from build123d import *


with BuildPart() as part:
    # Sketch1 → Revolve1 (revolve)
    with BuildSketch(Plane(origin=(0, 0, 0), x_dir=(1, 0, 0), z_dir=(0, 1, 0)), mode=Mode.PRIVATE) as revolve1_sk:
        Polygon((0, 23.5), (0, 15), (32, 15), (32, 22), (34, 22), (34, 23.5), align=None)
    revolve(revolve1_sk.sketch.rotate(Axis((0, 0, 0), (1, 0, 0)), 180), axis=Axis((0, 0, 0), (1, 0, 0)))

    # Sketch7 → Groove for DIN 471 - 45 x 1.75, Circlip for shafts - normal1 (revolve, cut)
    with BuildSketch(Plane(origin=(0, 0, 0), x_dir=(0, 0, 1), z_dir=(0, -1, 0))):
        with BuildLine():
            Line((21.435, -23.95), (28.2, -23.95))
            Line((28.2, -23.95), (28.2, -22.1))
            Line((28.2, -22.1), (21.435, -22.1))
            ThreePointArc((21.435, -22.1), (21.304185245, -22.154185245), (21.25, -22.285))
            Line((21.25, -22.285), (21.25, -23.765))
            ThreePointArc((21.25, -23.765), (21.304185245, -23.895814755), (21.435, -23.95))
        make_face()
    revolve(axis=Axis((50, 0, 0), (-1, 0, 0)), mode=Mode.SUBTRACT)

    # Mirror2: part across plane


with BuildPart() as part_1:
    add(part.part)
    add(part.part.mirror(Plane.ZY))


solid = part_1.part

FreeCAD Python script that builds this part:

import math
import FreeCAD as App
import Part
import Sketcher

doc = App.newDocument("Part")
body = doc.addObject("PartDesign::Body", "Body")

# Sketch on XZ plane
sketch1 = body.newObject("Sketcher::SketchObject", "Sketch")
sketch1.AttachmentSupport = (doc.getObject("XZ_Plane"), [""])
sketch1.MapMode = "FlatFace"
sketch1.addGeometry([
    Part.LineSegment(App.Vector(0, -23.5, 0), App.Vector(0, -15, 0)),  # 0
    Part.LineSegment(App.Vector(0, -15, 0), App.Vector(32, -15, 0)),  # 1
    Part.LineSegment(App.Vector(32, -15, 0), App.Vector(32, -22, 0)),  # 2
    Part.LineSegment(App.Vector(32, -22, 0), App.Vector(34, -22, 0)),  # 3
    Part.LineSegment(App.Vector(34, -22, 0), App.Vector(34, -23.5, 0)),  # 4
    Part.LineSegment(App.Vector(34, -23.5, 0), App.Vector(0, -23.5, 0)),  # 5
], False)
sketch1.addConstraint([
    Sketcher.Constraint("Coincident", 0, 2, 1, 1),
    Sketcher.Constraint("Coincident", 1, 2, 2, 1),
    Sketcher.Constraint("Coincident", 2, 2, 3, 1),
    Sketcher.Constraint("Coincident", 3, 2, 4, 1),
    Sketcher.Constraint("Coincident", 4, 2, 5, 1),
    Sketcher.Constraint("Coincident", 5, 2, 0, 1),
    Sketcher.Constraint("Vertical", 0),
    Sketcher.Constraint("Horizontal", 1),
    Sketcher.Constraint("Vertical", 2),
    Sketcher.Constraint("Horizontal", 3),
    Sketcher.Constraint("Vertical", 4),
    Sketcher.Constraint("Horizontal", 5),
    Sketcher.Constraint("PointOnObject", 0, 2, -2),
    Sketcher.Constraint("DistanceX", 1, 1, 1, 2, 32.0),
    Sketcher.Constraint("DistanceX", 3, 1, 3, 2, 2.0),
    Sketcher.Constraint("DistanceY", 2, 2, 2, 1, 7.0),
    Sketcher.Constraint("DistanceY", 0, 1, 0, 2, 8.5),
    Sketcher.Constraint("DistanceY", 0, 2, -1, 1, 15.0),
])
revolution = body.newObject("PartDesign::Revolution", "Revolution")
revolution.Profile = sketch1
revolution.ReferenceAxis = (sketch1, ["H_Axis"])
revolution.Angle = 360

# Sketch on XZ plane
sketch2 = body.newObject("Sketcher::SketchObject", "Sketch001")
sketch2.AttachmentSupport = (doc.getObject("XZ_Plane"), [""])
sketch2.MapMode = "FlatFace"
sketch2.addGeometry([
    Part.LineSegment(App.Vector(23.95, 21.43, 0), App.Vector(23.95, 28.2, 0)),  # 0
    Part.LineSegment(App.Vector(23.95, 28.2, 0), App.Vector(22.1, 28.2, 0)),  # 1
    Part.LineSegment(App.Vector(22.1, 28.2, 0), App.Vector(22.1, 21.43, 0)),  # 2
    Part.ArcOfCircle(Part.Circle(App.Vector(22.28, 21.43, 0), App.Vector(0, 0, 1), 0.18), math.radians(180), math.radians(270)),  # 3
    Part.LineSegment(App.Vector(22.29, 21.25, 0), App.Vector(23.77, 21.25, 0)),  # 4
    Part.ArcOfCircle(Part.Circle(App.Vector(23.77, 21.43, 0), App.Vector(0, 0, 1), 0.18), math.radians(-90), math.radians(0)),  # 5
], False)
sketch2.addConstraint([
    Sketcher.Constraint("Coincident", 0, 2, 1, 1),
    Sketcher.Constraint("Coincident", 1, 2, 2, 1),
    Sketcher.Constraint("Tangent", 2, 2, 3, 1),
    Sketcher.Constraint("Tangent", 3, 2, 4, 1),
    Sketcher.Constraint("Tangent", 4, 2, 5, 1),
    Sketcher.Constraint("Tangent", 5, 2, 0, 1),
    Sketcher.Constraint("Vertical", 0),
    Sketcher.Constraint("Horizontal", 1),
    Sketcher.Constraint("Vertical", 2),
    Sketcher.Constraint("Horizontal", 4),
    Sketcher.Constraint("Equal", 3, 5),
    Sketcher.Constraint("Radius", 3, 0.185),
    Sketcher.Constraint("DistanceX", 1, 2, 1, 1, 1.85),
    Sketcher.Constraint("DistanceY", -1, 1, 0, 2, 28.2),
    Sketcher.Constraint("DistanceX", -1, 1, 1, 2, 22.1),
    Sketcher.Constraint("DistanceY", 0, 1, 0, 2, 6.765),
])
groove = body.newObject("PartDesign::Groove", "Groove")
groove.Profile = sketch2
groove.ReferenceAxis = (sketch2, ["H_Axis"])
groove.Angle = 360
body2 = doc.addObject("PartDesign::Body", "Body001")
doc.recompute()

body2.BaseFeature = body
doc.recompute()

mirroring = doc.addObject("Part::Mirroring", "Mirroring")
mirroring.Source = body
mirroring.Base = App.Vector(0, 0, 0)
mirroring.Normal = App.Vector(-1, 0, 0)
body3 = doc.addObject("PartDesign::Body", "Body002")
body3.BaseFeature = mirroring
boolean = body2.newObject("PartDesign::Boolean", "Boolean")
boolean.Type = "Fuse"
boolean.addObjects([body3])
doc.recompute()
mirroring.Visibility = False

doc.recompute()
